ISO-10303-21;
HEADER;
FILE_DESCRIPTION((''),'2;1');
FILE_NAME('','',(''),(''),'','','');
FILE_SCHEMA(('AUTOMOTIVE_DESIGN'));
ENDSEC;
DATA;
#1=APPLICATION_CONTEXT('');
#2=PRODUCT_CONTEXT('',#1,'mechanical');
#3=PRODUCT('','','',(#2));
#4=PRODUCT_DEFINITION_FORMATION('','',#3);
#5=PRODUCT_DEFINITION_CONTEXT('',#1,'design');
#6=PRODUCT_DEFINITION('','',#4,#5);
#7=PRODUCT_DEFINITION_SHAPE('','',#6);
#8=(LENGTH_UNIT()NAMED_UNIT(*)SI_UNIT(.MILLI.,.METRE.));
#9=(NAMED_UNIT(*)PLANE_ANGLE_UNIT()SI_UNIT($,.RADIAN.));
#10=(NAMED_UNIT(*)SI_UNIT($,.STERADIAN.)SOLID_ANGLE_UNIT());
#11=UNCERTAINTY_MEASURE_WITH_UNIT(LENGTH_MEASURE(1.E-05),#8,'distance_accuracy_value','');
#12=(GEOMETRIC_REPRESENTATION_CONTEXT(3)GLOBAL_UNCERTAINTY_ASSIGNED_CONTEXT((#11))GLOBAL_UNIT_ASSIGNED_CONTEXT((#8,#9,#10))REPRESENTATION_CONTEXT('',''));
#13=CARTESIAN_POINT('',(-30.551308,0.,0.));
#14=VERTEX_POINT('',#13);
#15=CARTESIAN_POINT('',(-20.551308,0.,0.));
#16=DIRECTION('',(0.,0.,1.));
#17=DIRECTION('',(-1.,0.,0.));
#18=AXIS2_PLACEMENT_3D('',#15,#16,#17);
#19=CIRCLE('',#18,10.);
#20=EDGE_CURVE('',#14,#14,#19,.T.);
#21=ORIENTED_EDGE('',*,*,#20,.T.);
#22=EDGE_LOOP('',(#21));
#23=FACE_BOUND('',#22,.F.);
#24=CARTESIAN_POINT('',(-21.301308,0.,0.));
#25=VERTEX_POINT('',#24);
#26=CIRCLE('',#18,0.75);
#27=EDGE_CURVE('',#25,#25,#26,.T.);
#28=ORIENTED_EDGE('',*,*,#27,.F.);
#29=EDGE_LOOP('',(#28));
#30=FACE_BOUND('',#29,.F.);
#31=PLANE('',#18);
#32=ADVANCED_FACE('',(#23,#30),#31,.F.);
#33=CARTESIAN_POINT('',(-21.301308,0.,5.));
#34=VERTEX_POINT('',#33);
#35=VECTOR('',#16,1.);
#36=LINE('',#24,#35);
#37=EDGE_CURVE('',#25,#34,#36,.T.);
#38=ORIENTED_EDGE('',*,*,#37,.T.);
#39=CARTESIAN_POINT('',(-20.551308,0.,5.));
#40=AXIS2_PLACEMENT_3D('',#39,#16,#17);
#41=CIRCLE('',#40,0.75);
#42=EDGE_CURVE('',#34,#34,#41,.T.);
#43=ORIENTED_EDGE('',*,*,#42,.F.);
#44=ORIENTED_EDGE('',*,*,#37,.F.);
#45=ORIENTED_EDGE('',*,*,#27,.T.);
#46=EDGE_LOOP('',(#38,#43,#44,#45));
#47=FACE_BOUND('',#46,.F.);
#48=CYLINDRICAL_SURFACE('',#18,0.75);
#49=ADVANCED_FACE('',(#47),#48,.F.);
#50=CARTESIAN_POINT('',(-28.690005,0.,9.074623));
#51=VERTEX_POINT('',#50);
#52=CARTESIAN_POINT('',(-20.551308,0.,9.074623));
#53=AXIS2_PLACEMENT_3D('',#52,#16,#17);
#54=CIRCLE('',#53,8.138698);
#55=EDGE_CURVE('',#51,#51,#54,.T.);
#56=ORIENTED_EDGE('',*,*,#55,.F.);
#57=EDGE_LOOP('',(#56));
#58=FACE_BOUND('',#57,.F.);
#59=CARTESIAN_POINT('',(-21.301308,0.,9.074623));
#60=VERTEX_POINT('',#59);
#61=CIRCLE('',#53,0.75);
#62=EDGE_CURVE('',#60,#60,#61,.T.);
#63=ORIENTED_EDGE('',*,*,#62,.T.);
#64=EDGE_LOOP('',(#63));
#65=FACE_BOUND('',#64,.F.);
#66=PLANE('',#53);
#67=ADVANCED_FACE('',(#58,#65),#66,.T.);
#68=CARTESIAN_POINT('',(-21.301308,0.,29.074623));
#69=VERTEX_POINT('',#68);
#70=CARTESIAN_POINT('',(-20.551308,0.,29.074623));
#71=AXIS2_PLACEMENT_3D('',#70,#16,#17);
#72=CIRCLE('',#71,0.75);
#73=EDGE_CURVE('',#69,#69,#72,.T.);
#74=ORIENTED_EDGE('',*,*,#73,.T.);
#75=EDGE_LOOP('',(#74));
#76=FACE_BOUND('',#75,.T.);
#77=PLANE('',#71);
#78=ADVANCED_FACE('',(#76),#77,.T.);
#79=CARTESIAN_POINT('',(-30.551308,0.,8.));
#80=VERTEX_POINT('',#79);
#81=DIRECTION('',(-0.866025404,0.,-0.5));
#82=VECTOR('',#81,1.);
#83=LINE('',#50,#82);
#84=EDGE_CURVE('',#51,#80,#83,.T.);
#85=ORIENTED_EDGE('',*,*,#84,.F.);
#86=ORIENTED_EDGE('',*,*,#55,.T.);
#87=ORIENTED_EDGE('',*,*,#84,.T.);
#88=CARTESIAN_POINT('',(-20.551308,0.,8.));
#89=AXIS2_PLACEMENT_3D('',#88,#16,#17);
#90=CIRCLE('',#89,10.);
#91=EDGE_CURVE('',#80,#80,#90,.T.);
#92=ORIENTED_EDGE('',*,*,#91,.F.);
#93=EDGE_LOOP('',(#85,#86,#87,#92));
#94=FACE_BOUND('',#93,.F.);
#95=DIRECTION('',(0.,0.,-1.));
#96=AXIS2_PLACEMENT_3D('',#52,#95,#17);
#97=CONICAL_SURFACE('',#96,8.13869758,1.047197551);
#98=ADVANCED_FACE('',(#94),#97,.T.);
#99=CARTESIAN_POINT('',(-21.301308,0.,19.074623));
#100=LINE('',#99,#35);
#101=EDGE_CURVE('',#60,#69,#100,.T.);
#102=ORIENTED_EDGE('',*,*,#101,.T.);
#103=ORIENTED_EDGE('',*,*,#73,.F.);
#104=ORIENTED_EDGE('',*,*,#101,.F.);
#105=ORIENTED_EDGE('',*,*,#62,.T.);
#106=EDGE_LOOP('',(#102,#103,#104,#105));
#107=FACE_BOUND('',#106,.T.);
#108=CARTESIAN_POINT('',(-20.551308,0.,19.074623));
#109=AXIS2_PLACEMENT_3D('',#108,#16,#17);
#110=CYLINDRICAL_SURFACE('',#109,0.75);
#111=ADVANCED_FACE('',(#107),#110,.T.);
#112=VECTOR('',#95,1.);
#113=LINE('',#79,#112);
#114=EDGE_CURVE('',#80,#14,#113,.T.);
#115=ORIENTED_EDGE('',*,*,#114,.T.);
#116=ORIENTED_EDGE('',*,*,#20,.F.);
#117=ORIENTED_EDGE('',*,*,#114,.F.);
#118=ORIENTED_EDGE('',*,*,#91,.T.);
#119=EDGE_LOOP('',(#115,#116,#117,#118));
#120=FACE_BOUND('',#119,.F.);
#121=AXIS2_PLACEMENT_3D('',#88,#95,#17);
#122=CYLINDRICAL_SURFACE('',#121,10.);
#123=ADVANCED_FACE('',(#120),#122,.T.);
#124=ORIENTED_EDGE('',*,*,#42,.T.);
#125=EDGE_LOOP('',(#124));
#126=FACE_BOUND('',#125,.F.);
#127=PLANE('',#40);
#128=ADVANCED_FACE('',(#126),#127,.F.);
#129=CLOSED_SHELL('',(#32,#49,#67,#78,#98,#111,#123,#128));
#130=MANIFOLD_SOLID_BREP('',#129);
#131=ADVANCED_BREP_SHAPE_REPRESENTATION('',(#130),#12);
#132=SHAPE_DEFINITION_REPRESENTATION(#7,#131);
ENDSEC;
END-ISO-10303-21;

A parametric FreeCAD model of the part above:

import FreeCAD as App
import Part
import Sketcher

V = App.Vector
Q = App.Units.Quantity


def add_polygon(sketch, points):
    """Adds a closed chain of lines whose ends are joined by coincident constraints."""
    first, n = sketch.GeometryCount, len(points)
    for a, b in zip(points, points[1:] + points[:1]):
        sketch.addGeometry(Part.LineSegment(App.Vector(*a, 0), App.Vector(*b, 0)), False)
    for i in range(n):
        sketch.addConstraint(Sketcher.Constraint("Coincident", first + i, 2, first + (i + 1) % n, 1))

doc = App.newDocument("Part")
body = doc.addObject("PartDesign::Body", "Body")

sketch1 = body.newObject("Sketcher::SketchObject", "Sketch")
sketch1.AttachmentSupport = (doc.getObject("XZ_Plane"), [""])
sketch1.MapMode = "FlatFace"
add_polygon(sketch1, [(-21.3, 29.1), (-21.3, 9.1), (-28.7, 9.1), (-30.6, 8), (-30.6, 0), (-21.3, 0), (-21.3, 5), (-20.6, 5), (-20.6, 29.1)])
sketch1.addGeometry(Part.LineSegment(V(-20.6, 0, 0), V(-20.6, 29.1, 0)), True)
sketch1.addConstraint([
    Sketcher.Constraint("Vertical", 0),
    Sketcher.Constraint("Horizontal", 1),
    Sketcher.Constraint("Vertical", 3),
    Sketcher.Constraint("Horizontal", 4),
    Sketcher.Constraint("Vertical", 5),
    Sketcher.Constraint("Horizontal", 6),
    Sketcher.Constraint("Vertical", 7),
    Sketcher.Constraint("Horizontal", 8),
    Sketcher.Constraint("Vertical", 9),
    Sketcher.Constraint("Coincident", 9, 2, 7, 2),
    Sketcher.Constraint("PointOnObject", 3, 2, -1),
    Sketcher.Constraint("PointOnObject", 9, 1, -1),
    Sketcher.Constraint("Vertical", 0, 2, 4, 2),
    Sketcher.Constraint("DistanceY", 0, 2, 0, 1, 20.0),
    Sketcher.Constraint("DistanceY", 3, 2, 3, 1, 8.0),
    Sketcher.Constraint("DistanceY", 5, 1, 5, 2, 5.0),
    Sketcher.Constraint("Angle", 2, Q("-150 deg")),
    Sketcher.Constraint("DistanceX", 2, 2, 6, 2, 10.0),
    Sketcher.Constraint("DistanceX", 4, 1, 4, 2, 9.25),
    Sketcher.Constraint("DistanceX", 1, 2, 1, 1, 7.388698),
    Sketcher.Constraint("DistanceX", 0, 2, -1, 1, 21.301308),
])
revolution = body.newObject("PartDesign::Revolution", "Revolution")
revolution.Profile = sketch1
revolution.ReferenceAxis = (sketch1, ["Axis0"])
revolution.Angle = 360

doc.recompute()
